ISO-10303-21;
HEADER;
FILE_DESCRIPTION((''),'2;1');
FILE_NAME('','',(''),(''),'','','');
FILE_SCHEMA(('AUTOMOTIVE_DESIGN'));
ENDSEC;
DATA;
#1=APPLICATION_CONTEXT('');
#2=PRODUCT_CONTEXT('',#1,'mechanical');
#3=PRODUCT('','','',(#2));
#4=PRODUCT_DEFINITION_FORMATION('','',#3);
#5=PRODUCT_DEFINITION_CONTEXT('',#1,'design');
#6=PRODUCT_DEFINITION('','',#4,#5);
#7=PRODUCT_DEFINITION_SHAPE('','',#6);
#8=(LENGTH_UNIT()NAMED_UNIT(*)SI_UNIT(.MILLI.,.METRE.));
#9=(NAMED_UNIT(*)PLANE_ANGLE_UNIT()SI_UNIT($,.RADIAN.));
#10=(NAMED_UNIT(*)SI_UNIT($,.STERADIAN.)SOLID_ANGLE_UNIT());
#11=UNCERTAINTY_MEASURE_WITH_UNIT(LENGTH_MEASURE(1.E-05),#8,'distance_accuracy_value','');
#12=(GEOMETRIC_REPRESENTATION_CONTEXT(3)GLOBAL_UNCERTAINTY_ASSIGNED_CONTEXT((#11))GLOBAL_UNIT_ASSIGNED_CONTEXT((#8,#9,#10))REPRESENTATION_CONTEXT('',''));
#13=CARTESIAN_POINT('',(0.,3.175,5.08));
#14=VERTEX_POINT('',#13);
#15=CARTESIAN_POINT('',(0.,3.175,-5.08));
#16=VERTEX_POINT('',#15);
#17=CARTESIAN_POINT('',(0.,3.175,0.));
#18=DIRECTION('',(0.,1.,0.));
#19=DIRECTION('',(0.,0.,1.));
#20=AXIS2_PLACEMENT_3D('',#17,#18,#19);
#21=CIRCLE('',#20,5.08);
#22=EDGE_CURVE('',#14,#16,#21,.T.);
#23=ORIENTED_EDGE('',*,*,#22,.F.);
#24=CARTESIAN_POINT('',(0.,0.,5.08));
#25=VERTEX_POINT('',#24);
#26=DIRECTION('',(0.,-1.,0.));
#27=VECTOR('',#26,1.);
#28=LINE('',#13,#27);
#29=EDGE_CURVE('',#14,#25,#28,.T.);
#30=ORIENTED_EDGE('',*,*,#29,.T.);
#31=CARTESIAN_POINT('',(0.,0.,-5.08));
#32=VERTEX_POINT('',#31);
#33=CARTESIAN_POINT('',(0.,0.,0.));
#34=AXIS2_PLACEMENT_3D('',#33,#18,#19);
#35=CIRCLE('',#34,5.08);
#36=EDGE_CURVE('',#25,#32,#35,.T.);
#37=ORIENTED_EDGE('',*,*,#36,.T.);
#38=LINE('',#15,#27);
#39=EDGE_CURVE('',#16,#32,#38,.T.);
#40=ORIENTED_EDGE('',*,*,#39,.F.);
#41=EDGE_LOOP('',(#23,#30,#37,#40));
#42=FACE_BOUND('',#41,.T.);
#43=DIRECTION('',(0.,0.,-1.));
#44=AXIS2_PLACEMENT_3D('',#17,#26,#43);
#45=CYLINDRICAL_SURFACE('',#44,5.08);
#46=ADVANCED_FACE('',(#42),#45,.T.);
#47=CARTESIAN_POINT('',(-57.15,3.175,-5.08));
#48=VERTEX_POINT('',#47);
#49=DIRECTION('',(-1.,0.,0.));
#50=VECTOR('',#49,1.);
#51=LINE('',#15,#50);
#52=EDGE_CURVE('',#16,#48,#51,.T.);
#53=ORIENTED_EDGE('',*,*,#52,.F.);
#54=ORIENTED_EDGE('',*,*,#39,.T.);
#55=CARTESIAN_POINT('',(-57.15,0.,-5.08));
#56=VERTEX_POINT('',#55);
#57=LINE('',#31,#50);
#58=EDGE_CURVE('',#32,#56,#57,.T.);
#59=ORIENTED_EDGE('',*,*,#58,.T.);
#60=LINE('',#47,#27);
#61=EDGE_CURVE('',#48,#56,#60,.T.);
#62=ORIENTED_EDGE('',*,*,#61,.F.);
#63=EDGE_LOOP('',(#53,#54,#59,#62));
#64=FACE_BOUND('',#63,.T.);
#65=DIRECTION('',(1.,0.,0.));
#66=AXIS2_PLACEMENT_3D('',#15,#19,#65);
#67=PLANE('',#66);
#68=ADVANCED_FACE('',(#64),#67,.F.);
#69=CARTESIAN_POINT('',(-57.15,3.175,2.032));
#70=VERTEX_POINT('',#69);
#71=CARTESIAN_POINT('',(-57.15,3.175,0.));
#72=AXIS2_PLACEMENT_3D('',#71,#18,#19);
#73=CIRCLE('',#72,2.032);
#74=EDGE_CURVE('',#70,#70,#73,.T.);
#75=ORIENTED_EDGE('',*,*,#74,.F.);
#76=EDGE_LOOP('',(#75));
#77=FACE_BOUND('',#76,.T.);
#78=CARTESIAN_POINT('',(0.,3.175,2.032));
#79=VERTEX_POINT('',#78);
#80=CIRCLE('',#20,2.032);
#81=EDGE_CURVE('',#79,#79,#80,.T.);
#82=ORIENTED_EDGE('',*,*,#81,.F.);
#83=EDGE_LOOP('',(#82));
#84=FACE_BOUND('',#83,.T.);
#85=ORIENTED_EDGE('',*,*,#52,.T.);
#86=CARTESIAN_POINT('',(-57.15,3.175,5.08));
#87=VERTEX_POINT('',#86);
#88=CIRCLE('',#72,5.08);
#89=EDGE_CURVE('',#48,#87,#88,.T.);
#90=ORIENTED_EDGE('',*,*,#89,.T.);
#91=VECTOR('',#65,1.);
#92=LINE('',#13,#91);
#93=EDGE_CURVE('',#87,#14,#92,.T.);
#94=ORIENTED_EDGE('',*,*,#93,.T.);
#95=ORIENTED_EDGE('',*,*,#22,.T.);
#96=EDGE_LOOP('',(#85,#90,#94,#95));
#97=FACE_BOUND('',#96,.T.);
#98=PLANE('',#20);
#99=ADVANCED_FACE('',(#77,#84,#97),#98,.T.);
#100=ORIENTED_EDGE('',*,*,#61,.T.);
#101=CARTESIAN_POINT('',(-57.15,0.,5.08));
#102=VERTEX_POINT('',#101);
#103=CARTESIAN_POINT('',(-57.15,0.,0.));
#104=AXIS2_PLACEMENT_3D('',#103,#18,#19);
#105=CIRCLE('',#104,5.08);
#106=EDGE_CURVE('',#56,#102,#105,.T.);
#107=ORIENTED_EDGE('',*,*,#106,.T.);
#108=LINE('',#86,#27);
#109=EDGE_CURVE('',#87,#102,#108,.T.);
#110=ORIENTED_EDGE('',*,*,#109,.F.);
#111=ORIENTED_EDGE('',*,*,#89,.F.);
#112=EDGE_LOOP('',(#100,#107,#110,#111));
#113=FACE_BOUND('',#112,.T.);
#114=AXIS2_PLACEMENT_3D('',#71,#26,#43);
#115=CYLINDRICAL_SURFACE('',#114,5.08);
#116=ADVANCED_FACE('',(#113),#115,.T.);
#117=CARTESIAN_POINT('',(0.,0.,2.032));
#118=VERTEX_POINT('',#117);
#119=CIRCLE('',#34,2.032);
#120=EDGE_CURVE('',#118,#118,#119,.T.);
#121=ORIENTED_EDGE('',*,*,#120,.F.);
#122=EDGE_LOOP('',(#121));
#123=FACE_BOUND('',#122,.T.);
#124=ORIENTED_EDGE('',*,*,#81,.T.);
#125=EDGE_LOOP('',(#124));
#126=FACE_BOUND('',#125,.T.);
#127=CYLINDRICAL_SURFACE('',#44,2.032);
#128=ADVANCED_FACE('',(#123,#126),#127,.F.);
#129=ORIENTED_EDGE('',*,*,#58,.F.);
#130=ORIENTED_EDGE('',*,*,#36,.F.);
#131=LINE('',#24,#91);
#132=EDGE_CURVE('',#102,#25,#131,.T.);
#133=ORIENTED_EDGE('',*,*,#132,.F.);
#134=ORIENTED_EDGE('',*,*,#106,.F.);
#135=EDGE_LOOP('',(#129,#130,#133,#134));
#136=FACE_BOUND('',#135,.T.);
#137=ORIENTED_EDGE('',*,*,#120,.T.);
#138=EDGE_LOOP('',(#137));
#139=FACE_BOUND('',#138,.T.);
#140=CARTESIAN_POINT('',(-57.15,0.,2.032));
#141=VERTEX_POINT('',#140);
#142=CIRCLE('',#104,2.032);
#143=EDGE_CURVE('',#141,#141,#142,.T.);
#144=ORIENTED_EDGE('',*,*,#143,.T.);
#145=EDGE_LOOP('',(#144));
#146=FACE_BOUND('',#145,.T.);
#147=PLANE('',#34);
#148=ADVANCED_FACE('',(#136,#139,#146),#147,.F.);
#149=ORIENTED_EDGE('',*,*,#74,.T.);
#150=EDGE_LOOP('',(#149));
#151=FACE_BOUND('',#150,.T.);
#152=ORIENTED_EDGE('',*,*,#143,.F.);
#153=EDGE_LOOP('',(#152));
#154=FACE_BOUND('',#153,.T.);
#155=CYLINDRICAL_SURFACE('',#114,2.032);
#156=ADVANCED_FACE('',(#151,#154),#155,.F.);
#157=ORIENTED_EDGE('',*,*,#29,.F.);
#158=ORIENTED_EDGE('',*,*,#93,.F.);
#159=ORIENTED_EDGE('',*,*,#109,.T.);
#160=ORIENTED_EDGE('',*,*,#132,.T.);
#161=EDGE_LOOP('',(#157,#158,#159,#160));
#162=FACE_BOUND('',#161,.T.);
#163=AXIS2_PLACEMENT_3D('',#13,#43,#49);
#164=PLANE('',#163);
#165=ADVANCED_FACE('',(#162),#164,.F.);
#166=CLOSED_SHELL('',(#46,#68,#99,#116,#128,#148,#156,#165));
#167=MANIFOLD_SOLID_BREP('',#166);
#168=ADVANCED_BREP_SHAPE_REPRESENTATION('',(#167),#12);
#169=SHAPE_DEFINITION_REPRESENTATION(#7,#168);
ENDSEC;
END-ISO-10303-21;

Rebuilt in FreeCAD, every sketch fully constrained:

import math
import FreeCAD as App
import Part
import Sketcher
Q = App.Units.Quantity

doc = App.newDocument("Part")
body = doc.addObject("PartDesign::Body", "Body")

# Sketch on XZ plane
sketch1 = body.newObject("Sketcher::SketchObject", "Sketch")
sketch1.AttachmentSupport = (doc.getObject("XZ_Plane"), [""])
sketch1.MapMode = "FlatFace"
sketch1.addGeometry(Part.LineSegment(App.Vector(-57.1, 5.1, 0), App.Vector(0, 5.1, 0)), False)
sketch1.addGeometry(Part.ArcOfCircle(Part.Circle(App.Vector(0, 0, 0), App.Vector(0, 0, 1), 5.1), math.radians(-90), math.radians(90)), False)
sketch1.addGeometry(Part.LineSegment(App.Vector(0, -5.1, 0), App.Vector(-57.1, -5.1, 0)), False)
sketch1.addGeometry(Part.ArcOfCircle(Part.Circle(App.Vector(-57.1, 0, 0), App.Vector(0, 0, 1), 5.1), math.radians(90), math.radians(270)), False)
sketch1.addGeometry(Part.Circle(App.Vector(0, 0, 0), App.Vector(0, 0, 1), 2), False)
sketch1.addGeometry(Part.Circle(App.Vector(-57.1, 0, 0), App.Vector(0, 0, 1), 2), False)
sketch1.addConstraint(Sketcher.Constraint("Tangent", 0, 2, 1, 2))
sketch1.addConstraint(Sketcher.Constraint("Tangent", 1, 1, 2, 1))
sketch1.addConstraint(Sketcher.Constraint("Tangent", 2, 2, 3, 2))
sketch1.addConstraint(Sketcher.Constraint("Tangent", 3, 1, 0, 1))
sketch1.addConstraint(Sketcher.Constraint("Horizontal", 0))
sketch1.addConstraint(Sketcher.Constraint("Horizontal", 2))
sketch1.addConstraint(Sketcher.Constraint("Coincident", 1, 3, -1, 1))
sketch1.addConstraint(Sketcher.Constraint("Coincident", 4, 3, -1, 1))
sketch1.addConstraint(Sketcher.Constraint("Coincident", 5, 3, 3, 3))
sketch1.addConstraint(Sketcher.Constraint("Equal", 4, 5))
sketch1.addConstraint(Sketcher.Constraint("Radius", 1, Q("0.2 in")))
sketch1.addConstraint(Sketcher.Constraint("Diameter", 4, Q("0.16 in")))
sketch1.addConstraint(Sketcher.Constraint("DistanceX", 0, 1, 0, 2, Q("2.25 in")))
pad1 = body.newObject("PartDesign::Pad", "Pad")
pad1.Profile = sketch1
pad1.Length = Q("0.125 in")
pad1.Reversed = True

doc.recompute()
